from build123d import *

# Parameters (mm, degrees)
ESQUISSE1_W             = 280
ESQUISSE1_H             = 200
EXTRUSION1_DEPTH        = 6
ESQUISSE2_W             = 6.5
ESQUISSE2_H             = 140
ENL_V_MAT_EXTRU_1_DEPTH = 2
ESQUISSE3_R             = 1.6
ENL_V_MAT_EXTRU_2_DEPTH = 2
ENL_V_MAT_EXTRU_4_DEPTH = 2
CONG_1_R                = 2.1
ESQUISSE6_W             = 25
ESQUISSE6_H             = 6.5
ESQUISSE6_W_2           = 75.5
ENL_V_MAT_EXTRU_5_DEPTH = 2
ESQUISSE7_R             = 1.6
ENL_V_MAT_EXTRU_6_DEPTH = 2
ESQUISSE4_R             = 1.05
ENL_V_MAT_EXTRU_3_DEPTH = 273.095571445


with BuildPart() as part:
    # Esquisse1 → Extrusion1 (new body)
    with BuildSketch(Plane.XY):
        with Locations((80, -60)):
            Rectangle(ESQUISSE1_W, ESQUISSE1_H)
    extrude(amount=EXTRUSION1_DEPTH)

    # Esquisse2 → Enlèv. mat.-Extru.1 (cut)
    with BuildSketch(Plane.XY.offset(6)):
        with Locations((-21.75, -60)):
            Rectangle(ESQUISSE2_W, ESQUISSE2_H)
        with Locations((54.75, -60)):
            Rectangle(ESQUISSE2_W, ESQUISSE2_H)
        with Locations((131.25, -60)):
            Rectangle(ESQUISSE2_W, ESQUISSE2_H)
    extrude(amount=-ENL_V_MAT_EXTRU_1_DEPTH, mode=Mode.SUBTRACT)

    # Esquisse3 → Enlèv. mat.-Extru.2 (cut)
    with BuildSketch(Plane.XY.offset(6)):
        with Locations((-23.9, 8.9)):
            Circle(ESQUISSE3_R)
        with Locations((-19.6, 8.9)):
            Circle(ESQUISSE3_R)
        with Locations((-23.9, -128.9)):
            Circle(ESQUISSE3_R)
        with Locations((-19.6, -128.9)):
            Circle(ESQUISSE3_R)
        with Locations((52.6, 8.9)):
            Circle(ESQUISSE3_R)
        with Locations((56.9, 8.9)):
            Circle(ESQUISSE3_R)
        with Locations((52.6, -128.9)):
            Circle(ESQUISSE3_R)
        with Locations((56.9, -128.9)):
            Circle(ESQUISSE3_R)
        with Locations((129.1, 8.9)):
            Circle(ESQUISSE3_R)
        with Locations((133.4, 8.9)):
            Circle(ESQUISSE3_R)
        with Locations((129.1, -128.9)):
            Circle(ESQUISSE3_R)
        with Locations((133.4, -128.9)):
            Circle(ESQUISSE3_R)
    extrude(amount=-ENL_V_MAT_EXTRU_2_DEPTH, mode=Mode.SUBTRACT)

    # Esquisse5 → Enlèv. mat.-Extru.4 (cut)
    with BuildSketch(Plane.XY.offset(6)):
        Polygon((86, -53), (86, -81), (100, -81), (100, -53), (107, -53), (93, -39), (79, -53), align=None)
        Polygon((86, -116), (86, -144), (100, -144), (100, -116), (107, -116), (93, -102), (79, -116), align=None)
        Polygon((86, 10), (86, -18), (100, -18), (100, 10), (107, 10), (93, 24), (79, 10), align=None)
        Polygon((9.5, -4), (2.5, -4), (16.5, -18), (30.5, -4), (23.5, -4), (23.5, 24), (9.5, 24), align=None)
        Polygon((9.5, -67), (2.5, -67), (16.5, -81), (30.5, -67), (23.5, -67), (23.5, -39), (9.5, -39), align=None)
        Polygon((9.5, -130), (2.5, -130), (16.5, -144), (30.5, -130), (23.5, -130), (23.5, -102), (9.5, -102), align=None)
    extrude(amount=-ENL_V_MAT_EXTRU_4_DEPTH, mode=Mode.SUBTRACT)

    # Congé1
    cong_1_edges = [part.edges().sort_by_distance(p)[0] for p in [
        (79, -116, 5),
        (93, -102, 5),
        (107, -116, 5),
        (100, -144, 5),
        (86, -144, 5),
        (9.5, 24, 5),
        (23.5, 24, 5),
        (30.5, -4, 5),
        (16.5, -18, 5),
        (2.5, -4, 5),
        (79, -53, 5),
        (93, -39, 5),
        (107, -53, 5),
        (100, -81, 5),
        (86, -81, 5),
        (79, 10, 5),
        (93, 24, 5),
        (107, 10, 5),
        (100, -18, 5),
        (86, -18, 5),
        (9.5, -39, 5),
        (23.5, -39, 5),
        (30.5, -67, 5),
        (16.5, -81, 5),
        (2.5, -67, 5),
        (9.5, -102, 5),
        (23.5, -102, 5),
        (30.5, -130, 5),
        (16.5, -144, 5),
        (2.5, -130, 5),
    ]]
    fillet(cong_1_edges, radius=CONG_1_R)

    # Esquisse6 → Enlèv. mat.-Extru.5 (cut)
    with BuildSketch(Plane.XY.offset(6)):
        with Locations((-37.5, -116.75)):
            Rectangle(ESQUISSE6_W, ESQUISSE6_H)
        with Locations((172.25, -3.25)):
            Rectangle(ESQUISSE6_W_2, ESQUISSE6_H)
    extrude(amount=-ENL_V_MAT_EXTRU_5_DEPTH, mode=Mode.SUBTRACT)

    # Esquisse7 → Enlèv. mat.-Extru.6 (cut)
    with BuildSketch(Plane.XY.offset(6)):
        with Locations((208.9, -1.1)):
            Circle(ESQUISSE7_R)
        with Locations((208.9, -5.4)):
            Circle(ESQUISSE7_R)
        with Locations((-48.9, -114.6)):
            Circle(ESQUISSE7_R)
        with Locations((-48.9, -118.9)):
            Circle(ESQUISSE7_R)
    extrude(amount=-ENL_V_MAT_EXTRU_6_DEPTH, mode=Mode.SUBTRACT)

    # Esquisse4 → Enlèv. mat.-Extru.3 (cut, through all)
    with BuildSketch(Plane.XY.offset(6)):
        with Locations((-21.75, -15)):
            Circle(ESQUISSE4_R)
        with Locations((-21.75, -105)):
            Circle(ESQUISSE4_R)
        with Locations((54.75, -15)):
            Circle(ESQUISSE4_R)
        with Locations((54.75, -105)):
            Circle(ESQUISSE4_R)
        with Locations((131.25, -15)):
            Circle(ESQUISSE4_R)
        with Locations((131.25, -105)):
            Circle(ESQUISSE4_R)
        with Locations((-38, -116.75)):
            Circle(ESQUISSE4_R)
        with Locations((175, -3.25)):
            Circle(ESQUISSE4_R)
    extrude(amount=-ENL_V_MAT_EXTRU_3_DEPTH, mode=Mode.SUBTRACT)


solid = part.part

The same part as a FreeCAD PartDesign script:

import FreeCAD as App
import Part
import Sketcher
from FreeCAD import Vector


def edges_at(feature, points):
    """Names of the edges that pass closest to the given points."""
    edges = feature.Shape.Edges
    near = lambda p: min(range(len(edges)), key=lambda i: edges[i].distToShape(Part.Vertex(*p))[0])
    return sorted({f"Edge{near(p) + 1}" for p in points})

doc = App.newDocument("Part")
body = doc.addObject("PartDesign::Body", "Body")

# Sketch on XY plane
sketch1 = body.newObject("Sketcher::SketchObject", "Sketch")
sketch1.AttachmentSupport = (doc.getObject("XY_Plane"), [""])
sketch1.MapMode = "FlatFace"
sketch1.addGeometry([
    Part.LineSegment(Vector(-60, 40, 0), Vector(-60, -160, 0)),
    Part.LineSegment(Vector(-60, -160, 0), Vector(220, -160, 0)),
    Part.LineSegment(Vector(220, -160, 0), Vector(220, 40, 0)),
    Part.LineSegment(Vector(220, 40, 0), Vector(-60, 40, 0)),
], False)
sketch1.addConstraint([
    Sketcher.Constraint("Coincident", 0, 2, 1, 1),
    Sketcher.Constraint("Coincident", 1, 2, 2, 1),
    Sketcher.Constraint("Coincident", 2, 2, 3, 1),
    Sketcher.Constraint("Coincident", 3, 2, 0, 1),
    Sketcher.Constraint("Vertical", 0),
    Sketcher.Constraint("Horizontal", 1),
    Sketcher.Constraint("Vertical", 2),
    Sketcher.Constraint("Horizontal", 3),
    Sketcher.Constraint("DistanceX", 1, 1, 1, 2, 280.0),
    Sketcher.Constraint("DistanceY", 0, 2, 0, 1, 200.0),
    Sketcher.Constraint("DistanceX", 0, 2, -1, 1, 60.0),
    Sketcher.Constraint("DistanceY", 0, 2, -1, 1, 160.0),
])
pad1 = body.newObject("PartDesign::Pad", "Pad")
pad1.Profile = sketch1
pad1.Length = 6

# Sketch on XY plane
sketch2 = body.newObject("Sketcher::SketchObject", "Sketch001")
sketch2.AttachmentSupport = (doc.getObject("XY_Plane"), [""])
sketch2.MapMode = "FlatFace"
sketch2.AttachmentOffset = App.Placement(Vector(0, 0, 6), App.Rotation())
sketch2.addGeometry([
    Part.LineSegment(Vector(-25, 10, 0), Vector(-25, -130, 0)),  # 0
    Part.LineSegment(Vector(-25, -130, 0), Vector(-18, -130, 0)),  # 1
    Part.LineSegment(Vector(-18, -130, 0), Vector(-18, 10, 0)),  # 2
    Part.LineSegment(Vector(-18, 10, 0), Vector(-25, 10, 0)),  # 3
    Part.LineSegment(Vector(52, 10, 0), Vector(52, -130, 0)),  # 4
    Part.LineSegment(Vector(52, -130, 0), Vector(58, -130, 0)),  # 5
    Part.LineSegment(Vector(58, -130, 0), Vector(58, 10, 0)),  # 6
    Part.LineSegment(Vector(58, 10, 0), Vector(52, 10, 0)),  # 7
    Part.LineSegment(Vector(128, 10, 0), Vector(128, -130, 0)),  # 8
    Part.LineSegment(Vector(128, -130, 0), Vector(134, -130, 0)),  # 9
    Part.LineSegment(Vector(134, -130, 0), Vector(134, 10, 0)),  # 10
    Part.LineSegment(Vector(134, 10, 0), Vector(128, 10, 0)),  # 11
], False)
sketch2.addConstraint([
    Sketcher.Constraint("Coincident", 0, 2, 1, 1),
    Sketcher.Constraint("Coincident", 1, 2, 2, 1),
    Sketcher.Constraint("Coincident", 2, 2, 3, 1),
    Sketcher.Constraint("Coincident", 3, 2, 0, 1),
    Sketcher.Constraint("Coincident", 4, 2, 5, 1),
    Sketcher.Constraint("Coincident", 5, 2, 6, 1),
    Sketcher.Constraint("Coincident", 6, 2, 7, 1),
    Sketcher.Constraint("Coincident", 7, 2, 4, 1),
    Sketcher.Constraint("Coincident", 8, 2, 9, 1),
    Sketcher.Constraint("Coincident", 9, 2, 10, 1),
    Sketcher.Constraint("Coincident", 10, 2, 11, 1),
    Sketcher.Constraint("Coincident", 11, 2, 8, 1),
    Sketcher.Constraint("Vertical", 0),
    Sketcher.Constraint("Horizontal", 1),
    Sketcher.Constraint("Vertical", 2),
    Sketcher.Constraint("Horizontal", 3),
    Sketcher.Constraint("Vertical", 4),
    Sketcher.Constraint("Horizontal", 5),
    Sketcher.Constraint("Vertical", 6),
    Sketcher.Constraint("Horizontal", 7),
    Sketcher.Constraint("Vertical", 8),
    Sketcher.Constraint("Horizontal", 9),
    Sketcher.Constraint("Vertical", 10),
    Sketcher.Constraint("Horizontal", 11),
    Sketcher.Constraint("Horizontal", 1, 2, 4, 2),
    Sketcher.Constraint("Horizontal", 3, 2, 6, 2),
    Sketcher.Constraint("Horizontal", 5, 2, 8, 2),
    Sketcher.Constraint("Horizontal", 7, 2, 10, 2),
    Sketcher.Constraint("Equal", 3, 5),
    Sketcher.Constraint("Equal", 7, 9),
    Sketcher.Constraint("DistanceY", 0, 2, 0, 1, 140.0),
    Sketcher.Constraint("DistanceX", 1, 1, 1, 2, 6.5),
    Sketcher.Constraint("DistanceX", 0, 2, -1, 1, 25.0),
    Sketcher.Constraint("DistanceY", 0, 2, -1, 1, 130.0),
    Sketcher.Constraint("DistanceX", -1, 1, 5, 2, 58.0),
    Sketcher.Constraint("DistanceX", -1, 1, 8, 2, 128.0),
])
pocket1 = body.newObject("PartDesign::Pocket", "Pocket")
pocket1.Profile = sketch2
pocket1.Length = 2

# Sketch on XY plane
sketch3 = body.newObject("Sketcher::SketchObject", "Sketch002")
sketch3.AttachmentSupport = (doc.getObject("XY_Plane"), [""])
sketch3.MapMode = "FlatFace"
sketch3.AttachmentOffset = App.Placement(Vector(0, 0, 6), App.Rotation())
sketch3.addGeometry([
    Part.Circle(Vector(-23.9, 8.9, 0), Vector(0, 0, 1), 1.6),  # 0
    Part.Circle(Vector(-19.6, 8.9, 0), Vector(0, 0, 1), 1.6),  # 1
    Part.Circle(Vector(-23.9, -128.9, 0), Vector(0, 0, 1), 1.6),  # 2
    Part.Circle(Vector(-19.6, -128.9, 0), Vector(0, 0, 1), 1.6),  # 3
    Part.Circle(Vector(52.6, 8.9, 0), Vector(0, 0, 1), 1.6),  # 4
    Part.Circle(Vector(56.9, 8.9, 0), Vector(0, 0, 1), 1.6),  # 5
    Part.Circle(Vector(52.6, -128.9, 0), Vector(0, 0, 1), 1.6),  # 6
    Part.Circle(Vector(56.9, -128.9, 0), Vector(0, 0, 1), 1.6),  # 7
    Part.Circle(Vector(129.1, 8.9, 0), Vector(0, 0, 1), 1.6),  # 8
    Part.Circle(Vector(133.4, 8.9, 0), Vector(0, 0, 1), 1.6),  # 9
    Part.Circle(Vector(129.1, -128.9, 0), Vector(0, 0, 1), 1.6),  # 10
    Part.Circle(Vector(133.4, -128.9, 0), Vector(0, 0, 1), 1.6),  # 11
], False)
sketch3.addConstraint([
    Sketcher.Constraint("Equal", 0, 1),
    Sketcher.Constraint("Equal", 1, 2),
    Sketcher.Constraint("Equal", 2, 3),
    Sketcher.Constraint("Equal", 3, 4),
    Sketcher.Constraint("Equal", 4, 5),
    Sketcher.Constraint("Equal", 5, 6),
    Sketcher.Constraint("Equal", 6, 7),
    Sketcher.Constraint("Equal", 7, 8),
    Sketcher.Constraint("Equal", 8, 9),
    Sketcher.Constraint("Equal", 9, 10),
    Sketcher.Constraint("Equal", 10, 11),
    Sketcher.Constraint("Horizontal", 0, 3, 1, 3),
    Sketcher.Constraint("Horizontal", 2, 3, 3, 3),
    Sketcher.Constraint("Horizontal", 1, 3, 4, 3),
    Sketcher.Constraint("Horizontal", 4, 3, 5, 3),
    Sketcher.Constraint("Horizontal", 3, 3, 6, 3),
    Sketcher.Constraint("Horizontal", 6, 3, 7, 3),
    Sketcher.Constraint("Horizontal", 5, 3, 8, 3),
    Sketcher.Constraint("Horizontal", 8, 3, 9, 3),
    Sketcher.Constraint("Horizontal", 7, 3, 10, 3),
    Sketcher.Constraint("Horizontal", 10, 3, 11, 3),
    Sketcher.Constraint("Vertical", 0, 3, 2, 3),
    Sketcher.Constraint("Vertical", 1, 3, 3, 3),
    Sketcher.Constraint("Vertical", 4, 3, 6, 3),
    Sketcher.Constraint("Vertical", 5, 3, 7, 3),
    Sketcher.Constraint("Vertical", 8, 3, 10, 3),
    Sketcher.Constraint("Vertical", 9, 3, 11, 3),
    Sketcher.Constraint("Diameter", 0, 3.2),
    Sketcher.Constraint("DistanceX", 0, 3, 8, 3, 153.0),
    Sketcher.Constraint("DistanceX", 1, 3, 9, 3, 153.0),
    Sketcher.Constraint("DistanceX", 0, 3, -1, 1, 23.9),
    Sketcher.Constraint("DistanceY", -1, 1, 0, 3, 8.9),
    Sketcher.Constraint("DistanceX", 1, 3, -1, 1, 19.6),
    Sketcher.Constraint("DistanceY", 2, 3, -1, 1, 128.9),
    Sketcher.Constraint("DistanceX", -1, 1, 4, 3, 52.6),
    Sketcher.Constraint("DistanceX", -1, 1, 5, 3, 56.9),
])
pocket2 = body.newObject("PartDesign::Pocket", "Pocket001")
pocket2.Profile = sketch3
pocket2.Length = 2

# Sketch on XY plane
sketch4 = body.newObject("Sketcher::SketchObject", "Sketch003")
sketch4.AttachmentSupport = (doc.getObject("XY_Plane"), [""])
sketch4.MapMode = "FlatFace"
sketch4.AttachmentOffset = App.Placement(Vector(0, 0, 6), App.Rotation())
sketch4.addGeometry([
    Part.LineSegment(Vector(86, -53, 0), Vector(86, -81, 0)),  # 0
    Part.LineSegment(Vector(86, -81, 0), Vector(100, -81, 0)),  # 1
    Part.LineSegment(Vector(100, -81, 0), Vector(100, -53, 0)),  # 2
    Part.LineSegment(Vector(100, -53, 0), Vector(107, -53, 0)),  # 3
    Part.LineSegment(Vector(107, -53, 0), Vector(93, -39, 0)),  # 4
    Part.LineSegment(Vector(93, -39, 0), Vector(79, -53, 0)),  # 5
    Part.LineSegment(Vector(79, -53, 0), Vector(86, -53, 0)),  # 6
    Part.LineSegment(Vector(86, -116, 0), Vector(86, -144, 0)),  # 7
    Part.LineSegment(Vector(86, -144, 0), Vector(100, -144, 0)),  # 8
    Part.LineSegment(Vector(100, -144, 0), Vector(100, -116, 0)),  # 9
    Part.LineSegment(Vector(100, -116, 0), Vector(107, -116, 0)),  # 10
    Part.LineSegment(Vector(107, -116, 0), Vector(93, -102, 0)),  # 11
    Part.LineSegment(Vector(93, -102, 0), Vector(79, -116, 0)),  # 12
    Part.LineSegment(Vector(79, -116, 0), Vector(86, -116, 0)),  # 13
    Part.LineSegment(Vector(86, 10, 0), Vector(86, -18, 0)),  # 14
    Part.LineSegment(Vector(86, -18, 0), Vector(100, -18, 0)),  # 15
    Part.LineSegment(Vector(100, -18, 0), Vector(100, 10, 0)),  # 16
    Part.LineSegment(Vector(100, 10, 0), Vector(107, 10, 0)),  # 17
    Part.LineSegment(Vector(107, 10, 0), Vector(93, 24, 0)),  # 18
    Part.LineSegment(Vector(93, 24, 0), Vector(79, 10, 0)),  # 19
    Part.LineSegment(Vector(79, 10, 0), Vector(86, 10, 0)),  # 20
    Part.LineSegment(Vector(10, -4, 0), Vector(2, -4, 0)),  # 21
    Part.LineSegment(Vector(2, -4, 0), Vector(16, -18, 0)),  # 22
    Part.LineSegment(Vector(16, -18, 0), Vector(30, -4, 0)),  # 23
    Part.LineSegment(Vector(30, -4, 0), Vector(24, -4, 0)),  # 24
    Part.LineSegment(Vector(24, -4, 0), Vector(24, 24, 0)),  # 25
    Part.LineSegment(Vector(24, 24, 0), Vector(10, 24, 0)),  # 26
    Part.LineSegment(Vector(10, 24, 0), Vector(10, -4, 0)),  # 27
    Part.LineSegment(Vector(10, -67, 0), Vector(2, -67, 0)),  # 28
    Part.LineSegment(Vector(2, -67, 0), Vector(16, -81, 0)),  # 29
    Part.LineSegment(Vector(16, -81, 0), Vector(30, -67, 0)),  # 30
    Part.LineSegment(Vector(30, -67, 0), Vector(24, -67, 0)),  # 31
    Part.LineSegment(Vector(24, -67, 0), Vector(24, -39, 0)),  # 32
    Part.LineSegment(Vector(24, -39, 0), Vector(10, -39, 0)),  # 33
    Part.LineSegment(Vector(10, -39, 0), Vector(10, -67, 0)),  # 34
    Part.LineSegment(Vector(10, -130, 0), Vector(2, -130, 0)),  # 35
    Part.LineSegment(Vector(2, -130, 0), Vector(16, -144, 0)),  # 36
    Part.LineSegment(Vector(16, -144, 0), Vector(30, -130, 0)),  # 37
    Part.LineSegment(Vector(30, -130, 0), Vector(24, -130, 0)),  # 38
    Part.LineSegment(Vector(24, -130, 0), Vector(24, -102, 0)),  # 39
    Part.LineSegment(Vector(24, -102, 0), Vector(10, -102, 0)),  # 40
    Part.LineSegment(Vector(10, -102, 0), Vector(10, -130, 0)),  # 41
], False)
sketch4.addConstraint([
    Sketcher.Constraint("Coincident", 0, 2, 1, 1),
    Sketcher.Constraint("Coincident", 1, 2, 2, 1),
    Sketcher.Constraint("Coincident", 2, 2, 3, 1),
    Sketcher.Constraint("Coincident", 3, 2, 4, 1),
    Sketcher.Constraint("Coincident", 4, 2, 5, 1),
    Sketcher.Constraint("Coincident", 5, 2, 6, 1),
    Sketcher.Constraint("Coincident", 6, 2, 0, 1),
    Sketcher.Constraint("Coincident", 7, 2, 8, 1),
    Sketcher.Constraint("Coincident", 8, 2, 9, 1),
    Sketcher.Constraint("Coincident", 9, 2, 10, 1),
    Sketcher.Constraint("Coincident", 10, 2, 11, 1),
    Sketcher.Constraint("Coincident", 11, 2, 12, 1),
    Sketcher.Constraint("Coincident", 12, 2, 13, 1),
    Sketcher.Constraint("Coincident", 13, 2, 7, 1),
    Sketcher.Constraint("Coincident", 14, 2, 15, 1),
    Sketcher.Constraint("Coincident", 15, 2, 16, 1),
    Sketcher.Constraint("Coincident", 16, 2, 17, 1),
    Sketcher.Constraint("Coincident", 17, 2, 18, 1),
    Sketcher.Constraint("Coincident", 18, 2, 19, 1),
    Sketcher.Constraint("Coincident", 19, 2, 20, 1),
    Sketcher.Constraint("Coincident", 20, 2, 14, 1),
    Sketcher.Constraint("Coincident", 21, 2, 22, 1),
    Sketcher.Constraint("Coincident", 22, 2, 23, 1),
    Sketcher.Constraint("Coincident", 23, 2, 24, 1),
    Sketcher.Constraint("Coincident", 24, 2, 25, 1),
    Sketcher.Constraint("Coincident", 25, 2, 26, 1),
    Sketcher.Constraint("Coincident", 26, 2, 27, 1),
    Sketcher.Constraint("Coincident", 27, 2, 21, 1),
    Sketcher.Constraint("Coincident", 28, 2, 29, 1),
    Sketcher.Constraint("Coincident", 29, 2, 30, 1),
    Sketcher.Constraint("Coincident", 30, 2, 31, 1),
    Sketcher.Constraint("Coincident", 31, 2, 32, 1),
    Sketcher.Constraint("Coincident", 32, 2, 33, 1),
    Sketcher.Constraint("Coincident", 33, 2, 34, 1),
    Sketcher.Constraint("Coincident", 34, 2, 28, 1),
    Sketcher.Constraint("Coincident", 35, 2, 36, 1),
    Sketcher.Constraint("Coincident", 36, 2, 37, 1),
    Sketcher.Constraint("Coincident", 37, 2, 38, 1),
    Sketcher.Constraint("Coincident", 38, 2, 39, 1),
    Sketcher.Constraint("Coincident", 39, 2, 40, 1),
    Sketcher.Constraint("Coincident", 40, 2, 41, 1),
    Sketcher.Constraint("Coincident", 41, 2, 35, 1),
    Sketcher.Constraint("Vertical", 0),
    Sketcher.Constraint("Horizontal", 1),
    Sketcher.Constraint("Vertical", 2),
    Sketcher.Constraint("Horizontal", 3),
    Sketcher.Constraint("Horizontal", 6),
    Sketcher.Constraint("Vertical", 7),
    Sketcher.Constraint("Horizontal", 8),
    Sketcher.Constraint("Vertical", 9),
    Sketcher.Constraint("Horizontal", 10),
    Sketcher.Constraint("Horizontal", 13),
    Sketcher.Constraint("Vertical", 14),
    Sketcher.Constraint("Horizontal", 15),
    Sketcher.Constraint("Vertical", 16),
    Sketcher.Constraint("Horizontal", 17),
    Sketcher.Constraint("Horizontal", 20),
    Sketcher.Constraint("Horizontal", 21),
    Sketcher.Constraint("Horizontal", 24),
    Sketcher.Constraint("Vertical", 25),
    Sketcher.Constraint("Horizontal", 26),
    Sketcher.Constraint("Vertical", 27),
    Sketcher.Constraint("Horizontal", 28),
    Sketcher.Constraint("Horizontal", 31),
    Sketcher.Constraint("Vertical", 32),
    Sketcher.Constraint("Horizontal", 33),
    Sketcher.Constraint("Vertical", 34),
    Sketcher.Constraint("Horizontal", 35),
    Sketcher.Constraint("Horizontal", 38),
    Sketcher.Constraint("Vertical", 39),
    Sketcher.Constraint("Horizontal", 40),
    Sketcher.Constraint("Vertical", 41),
    Sketcher.Constraint("Perpendicular", 4, 5),
    Sketcher.Constraint("Perpendicular", 5, 11),
    Sketcher.Constraint("Perpendicular", 11, 12),
    Sketcher.Constraint("Perpendicular", 12, 18),
    Sketcher.Constraint("Perpendicular", 18, 19),
    Sketcher.Constraint("Perpendicular", 19, 22),
    Sketcher.Constraint("Perpendicular", 22, 23),
    Sketcher.Constraint("Perpendicular", 23, 29),
    Sketcher.Constraint("Perpendicular", 29, 30),
    Sketcher.Constraint("Perpendicular", 30, 36),
    Sketcher.Constraint("Perpendicular", 36, 37),
    Sketcher.Constraint("Horizontal", 3, 2, 5, 2),
    Sketcher.Constraint("Horizontal", 10, 2, 12, 2),
    Sketcher.Constraint("Horizontal", 17, 2, 19, 2),
    Sketcher.Constraint("Horizontal", 15, 2, 22, 2),
    Sketcher.Constraint("Horizontal", 21, 2, 23, 2),
    Sketcher.Constraint("Horizontal", 18, 2, 25, 2),
    Sketcher.Constraint("Horizontal", 1, 2, 29, 2),
    Sketcher.Constraint("Horizontal", 28, 2, 30, 2),
    Sketcher.Constraint("Horizontal", 4, 2, 32, 2),
    Sketcher.Constraint("Horizontal", 8, 2, 36, 2),
    Sketcher.Constraint("Horizontal", 35, 2, 37, 2),
    Sketcher.Constraint("Horizontal", 11, 2, 39, 2),
    Sketcher.Constraint("Vertical", 6, 2, 7, 2),
    Sketcher.Constraint("Vertical", 2, 2, 8, 2),
    Sketcher.Constraint("Vertical", 3, 2, 10, 2),
    Sketcher.Constraint("Vertical", 4, 2, 11, 2),
    Sketcher.Constraint("Vertical", 13, 2, 14, 2),
    Sketcher.Constraint("Vertical", 9, 2, 15, 2),
    Sketcher.Constraint("Vertical", 10, 2, 17, 2),
    Sketcher.Constraint("Vertical", 11, 2, 18, 2),
    Sketcher.Constraint("Vertical", 21, 2, 28, 2),
    Sketcher.Constraint("Vertical", 22, 2, 29, 2),
    Sketcher.Constraint("Vertical", 25, 2, 31, 2),
    Sketcher.Constraint("Vertical", 27, 2, 33, 2),
    Sketcher.Constraint("Vertical", 28, 2, 35, 2),
    Sketcher.Constraint("Vertical", 29, 2, 36, 2),
    Sketcher.Constraint("Vertical", 32, 2, 38, 2),
    Sketcher.Constraint("Vertical", 34, 2, 40, 2),
    Sketcher.Constraint("Equal", 3, 6),
    Sketcher.Constraint("Equal", 20, 21),
    Sketcher.Constraint("Equal", 21, 24),
    Sketcher.Constraint("Equal", 15, 26),
    Sketcher.Constraint("Equal", 2, 7),
    Sketcher.Constraint("Equal", 9, 14),
    Sketcher.Constraint("Equal", 4, 5),
    Sketcher.Constraint("DistanceX", 1, 1, 1, 2, 14.0),
    Sketcher.Constraint("DistanceX", 3, 1, 3, 2, 7.0),
    Sketcher.Constraint("DistanceY", 0, 2, 0, 1, 28.0),
    Sketcher.Constraint("DistanceX", -1, 1, 0, 2, 86.0),
    Sketcher.Constraint("DistanceY", 0, 2, -1, 1, 81.0),
    Sketcher.Constraint("DistanceY", 7, 2, -1, 1, 144.0),
    Sketcher.Constraint("DistanceY", 14, 2, -1, 1, 18.0),
    Sketcher.Constraint("DistanceX", -1, 1, 21, 2, 2.5),
])
pocket3 = body.newObject("PartDesign::Pocket", "Pocket002")
pocket3.Profile = sketch4
pocket3.Length = 2
doc.recompute()

fillet = body.newObject("PartDesign::Fillet", "Fillet")
fillet.Base = (pocket3, edges_at(pocket3, [
    (79, -116, 5),
    (93, -102, 5),
    (107, -116, 5),
    (100, -144, 5),
    (86, -144, 5),
    (9.5, 24, 5),
    (23.5, 24, 5),
    (30.5, -4, 5),
    (16.5, -18, 5),
    (2.5, -4, 5),
    (79, -53, 5),
    (93, -39, 5),
    (107, -53, 5),
    (100, -81, 5),
    (86, -81, 5),
    (79, 10, 5),
    (93, 24, 5),
    (107, 10, 5),
    (100, -18, 5),
    (86, -18, 5),
    (9.5, -39, 5),
    (23.5, -39, 5),
    (30.5, -67, 5),
    (16.5, -81, 5),
    (2.5, -67, 5),
    (9.5, -102, 5),
    (23.5, -102, 5),
    (30.5, -130, 5),
    (16.5, -144, 5),
    (2.5, -130, 5),
]))
fillet.Radius = 2.1

# Sketch on XY plane
sketch5 = body.newObject("Sketcher::SketchObject", "Sketch004")
sketch5.AttachmentSupport = (doc.getObject("XY_Plane"), [""])
sketch5.MapMode = "FlatFace"
sketch5.AttachmentOffset = App.Placement(Vector(0, 0, 6), App.Rotation())
sketch5.addGeometry([
    Part.LineSegment(Vector(-50, -114, 0), Vector(-50, -120, 0)),  # 0
    Part.LineSegment(Vector(-50, -120, 0), Vector(-25, -120, 0)),  # 1
    Part.LineSegment(Vector(-25, -120, 0), Vector(-25, -114, 0)),  # 2
    Part.LineSegment(Vector(-25, -114, 0), Vector(-50, -114, 0)),  # 3
    Part.LineSegment(Vector(134, 0, 0), Vector(134, -6, 0)),  # 4
    Part.LineSegment(Vector(134, -6, 0), Vector(210, -6, 0)),  # 5
    Part.LineSegment(Vector(210, -6, 0), Vector(210, 0, 0)),  # 6
    Part.LineSegment(Vector(210, 0, 0), Vector(134, 0, 0)),  # 7
], False)
sketch5.addConstraint([
    Sketcher.Constraint("Coincident", 0, 2, 1, 1),
    Sketcher.Constraint("Coincident", 1, 2, 2, 1),
    Sketcher.Constraint("Coincident", 2, 2, 3, 1),
    Sketcher.Constraint("Coincident", 3, 2, 0, 1),
    Sketcher.Constraint("Coincident", 4, 2, 5, 1),
    Sketcher.Constraint("Coincident", 5, 2, 6, 1),
    Sketcher.Constraint("Coincident", 6, 2, 7, 1),
    Sketcher.Constraint("Coincident", 7, 2, 4, 1),
    Sketcher.Constraint("Vertical", 0),
    Sketcher.Constraint("Horizontal", 1),
    Sketcher.Constraint("Vertical", 2),
    Sketcher.Constraint("Horizontal", 3),
    Sketcher.Constraint("Vertical", 4),
    Sketcher.Constraint("Horizontal", 5),
    Sketcher.Constraint("Vertical", 6),
    Sketcher.Constraint("Horizontal", 7),
    Sketcher.Constraint("PointOnObject", 6, 2, -1),
    Sketcher.Constraint("Equal", 2, 4),
    Sketcher.Constraint("DistanceX", 1, 1, 1, 2, 25.0),
    Sketcher.Constraint("DistanceX", 5, 1, 5, 2, 75.5),
    Sketcher.Constraint("DistanceY", 0, 2, 0, 1, 6.5),
    Sketcher.Constraint("DistanceX", 0, 2, -1, 1, 50.0),
    Sketcher.Constraint("DistanceY", 0, 2, -1, 1, 120.0),
    Sketcher.Constraint("DistanceX", -1, 1, 5, 2, 210.0),
])
pocket4 = body.newObject("PartDesign::Pocket", "Pocket003")
pocket4.Profile = sketch5
pocket4.Length = 2

# Sketch on XY plane
sketch6 = body.newObject("Sketcher::SketchObject", "Sketch005")
sketch6.AttachmentSupport = (doc.getObject("XY_Plane"), [""])
sketch6.MapMode = "FlatFace"
sketch6.AttachmentOffset = App.Placement(Vector(0, 0, 6), App.Rotation())
sketch6.addGeometry([
    Part.Circle(Vector(208.9, -1.1, 0), Vector(0, 0, 1), 1.6),
    Part.Circle(Vector(208.9, -5.4, 0), Vector(0, 0, 1), 1.6),
    Part.Circle(Vector(-48.9, -114.6, 0), Vector(0, 0, 1), 1.6),
    Part.Circle(Vector(-48.9, -118.9, 0), Vector(0, 0, 1), 1.6),
], False)
sketch6.addConstraint([
    Sketcher.Constraint("Equal", 0, 1),
    Sketcher.Constraint("Equal", 1, 2),
    Sketcher.Constraint("Equal", 2, 3),
    Sketcher.Constraint("Vertical", 0, 3, 1, 3),
    Sketcher.Constraint("Vertical", 2, 3, 3, 3),
    Sketcher.Constraint("Diameter", 0, 3.2),
    Sketcher.Constraint("DistanceX", -1, 1, 0, 3, 208.9),
    Sketcher.Constraint("DistanceY", 0, 3, -1, 1, 1.1),
    Sketcher.Constraint("DistanceY", 1, 3, -1, 1, 5.4),
    Sketcher.Constraint("DistanceX", 2, 3, -1, 1, 48.9),
    Sketcher.Constraint("DistanceY", 2, 3, -1, 1, 114.6),
    Sketcher.Constraint("DistanceY", 3, 3, -1, 1, 118.9),
])
pocket5 = body.newObject("PartDesign::Pocket", "Pocket004")
pocket5.Profile = sketch6
pocket5.Length = 2

# Sketch on XY plane
sketch7 = body.newObject("Sketcher::SketchObject", "Sketch006")
sketch7.AttachmentSupport = (doc.getObject("XY_Plane"), [""])
sketch7.MapMode = "FlatFace"
sketch7.AttachmentOffset = App.Placement(Vector(0, 0, 6), App.Rotation())
sketch7.addGeometry([
    Part.Circle(Vector(-21.8, -15, 0), Vector(0, 0, 1), 1.1),  # 0
    Part.Circle(Vector(-21.8, -105, 0), Vector(0, 0, 1), 1.1),  # 1
    Part.Circle(Vector(54.8, -15, 0), Vector(0, 0, 1), 1.1),  # 2
    Part.Circle(Vector(54.8, -105, 0), Vector(0, 0, 1), 1.1),  # 3
    Part.Circle(Vector(131.2, -15, 0), Vector(0, 0, 1), 1.1),  # 4
    Part.Circle(Vector(131.2, -105, 0), Vector(0, 0, 1), 1.1),  # 5
    Part.Circle(Vector(-38, -116.8, 0), Vector(0, 0, 1), 1.1),  # 6
    Part.Circle(Vector(175, -3.2, 0), Vector(0, 0, 1), 1.1),  # 7
], False)
sketch7.addConstraint([
    Sketcher.Constraint("Equal", 0, 1),
    Sketcher.Constraint("Equal", 1, 2),
    Sketcher.Constraint("Equal", 2, 3),
    Sketcher.Constraint("Equal", 3, 4),
    Sketcher.Constraint("Equal", 4, 5),
    Sketcher.Constraint("Equal", 5, 6),
    Sketcher.Constraint("Equal", 6, 7),
    Sketcher.Constraint("Horizontal", 0, 3, 2, 3),
    Sketcher.Constraint("Horizontal", 1, 3, 3, 3),
    Sketcher.Constraint("Horizontal", 2, 3, 4, 3),
    Sketcher.Constraint("Horizontal", 3, 3, 5, 3),
    Sketcher.Constraint("Vertical", 0, 3, 1, 3),
    Sketcher.Constraint("Vertical", 2, 3, 3, 3),
    Sketcher.Constraint("Vertical", 4, 3, 5, 3),
    Sketcher.Constraint("Diameter", 0, 2.1),
    Sketcher.Constraint("DistanceY", 0, 3, -1, 1, 15.0),
    Sketcher.Constraint("DistanceY", 1, 3, -1, 1, 105.0),
    Sketcher.Constraint("DistanceX", 6, 3, -1, 1, 38.0),
    Sketcher.Constraint("DistanceX", -1, 1, 7, 3, 175.0),
    Sketcher.Constraint("DistanceX", 0, 3, 4, 3, 153.0),
    Sketcher.Constraint("DistanceX", 0, 3, 2, 3, 76.5),
    Sketcher.Constraint("DistanceX", 0, 3, -1, 1, 21.75),
    Sketcher.Constraint("DistanceY", 6, 3, -1, 1, 116.75),
    Sketcher.Constraint("DistanceY", 7, 3, -1, 1, 3.25),
])
pocket6 = body.newObject("PartDesign::Pocket", "Pocket005")
pocket6.Profile = sketch7
pocket6.Type = "ThroughAll"

doc.recompute()
